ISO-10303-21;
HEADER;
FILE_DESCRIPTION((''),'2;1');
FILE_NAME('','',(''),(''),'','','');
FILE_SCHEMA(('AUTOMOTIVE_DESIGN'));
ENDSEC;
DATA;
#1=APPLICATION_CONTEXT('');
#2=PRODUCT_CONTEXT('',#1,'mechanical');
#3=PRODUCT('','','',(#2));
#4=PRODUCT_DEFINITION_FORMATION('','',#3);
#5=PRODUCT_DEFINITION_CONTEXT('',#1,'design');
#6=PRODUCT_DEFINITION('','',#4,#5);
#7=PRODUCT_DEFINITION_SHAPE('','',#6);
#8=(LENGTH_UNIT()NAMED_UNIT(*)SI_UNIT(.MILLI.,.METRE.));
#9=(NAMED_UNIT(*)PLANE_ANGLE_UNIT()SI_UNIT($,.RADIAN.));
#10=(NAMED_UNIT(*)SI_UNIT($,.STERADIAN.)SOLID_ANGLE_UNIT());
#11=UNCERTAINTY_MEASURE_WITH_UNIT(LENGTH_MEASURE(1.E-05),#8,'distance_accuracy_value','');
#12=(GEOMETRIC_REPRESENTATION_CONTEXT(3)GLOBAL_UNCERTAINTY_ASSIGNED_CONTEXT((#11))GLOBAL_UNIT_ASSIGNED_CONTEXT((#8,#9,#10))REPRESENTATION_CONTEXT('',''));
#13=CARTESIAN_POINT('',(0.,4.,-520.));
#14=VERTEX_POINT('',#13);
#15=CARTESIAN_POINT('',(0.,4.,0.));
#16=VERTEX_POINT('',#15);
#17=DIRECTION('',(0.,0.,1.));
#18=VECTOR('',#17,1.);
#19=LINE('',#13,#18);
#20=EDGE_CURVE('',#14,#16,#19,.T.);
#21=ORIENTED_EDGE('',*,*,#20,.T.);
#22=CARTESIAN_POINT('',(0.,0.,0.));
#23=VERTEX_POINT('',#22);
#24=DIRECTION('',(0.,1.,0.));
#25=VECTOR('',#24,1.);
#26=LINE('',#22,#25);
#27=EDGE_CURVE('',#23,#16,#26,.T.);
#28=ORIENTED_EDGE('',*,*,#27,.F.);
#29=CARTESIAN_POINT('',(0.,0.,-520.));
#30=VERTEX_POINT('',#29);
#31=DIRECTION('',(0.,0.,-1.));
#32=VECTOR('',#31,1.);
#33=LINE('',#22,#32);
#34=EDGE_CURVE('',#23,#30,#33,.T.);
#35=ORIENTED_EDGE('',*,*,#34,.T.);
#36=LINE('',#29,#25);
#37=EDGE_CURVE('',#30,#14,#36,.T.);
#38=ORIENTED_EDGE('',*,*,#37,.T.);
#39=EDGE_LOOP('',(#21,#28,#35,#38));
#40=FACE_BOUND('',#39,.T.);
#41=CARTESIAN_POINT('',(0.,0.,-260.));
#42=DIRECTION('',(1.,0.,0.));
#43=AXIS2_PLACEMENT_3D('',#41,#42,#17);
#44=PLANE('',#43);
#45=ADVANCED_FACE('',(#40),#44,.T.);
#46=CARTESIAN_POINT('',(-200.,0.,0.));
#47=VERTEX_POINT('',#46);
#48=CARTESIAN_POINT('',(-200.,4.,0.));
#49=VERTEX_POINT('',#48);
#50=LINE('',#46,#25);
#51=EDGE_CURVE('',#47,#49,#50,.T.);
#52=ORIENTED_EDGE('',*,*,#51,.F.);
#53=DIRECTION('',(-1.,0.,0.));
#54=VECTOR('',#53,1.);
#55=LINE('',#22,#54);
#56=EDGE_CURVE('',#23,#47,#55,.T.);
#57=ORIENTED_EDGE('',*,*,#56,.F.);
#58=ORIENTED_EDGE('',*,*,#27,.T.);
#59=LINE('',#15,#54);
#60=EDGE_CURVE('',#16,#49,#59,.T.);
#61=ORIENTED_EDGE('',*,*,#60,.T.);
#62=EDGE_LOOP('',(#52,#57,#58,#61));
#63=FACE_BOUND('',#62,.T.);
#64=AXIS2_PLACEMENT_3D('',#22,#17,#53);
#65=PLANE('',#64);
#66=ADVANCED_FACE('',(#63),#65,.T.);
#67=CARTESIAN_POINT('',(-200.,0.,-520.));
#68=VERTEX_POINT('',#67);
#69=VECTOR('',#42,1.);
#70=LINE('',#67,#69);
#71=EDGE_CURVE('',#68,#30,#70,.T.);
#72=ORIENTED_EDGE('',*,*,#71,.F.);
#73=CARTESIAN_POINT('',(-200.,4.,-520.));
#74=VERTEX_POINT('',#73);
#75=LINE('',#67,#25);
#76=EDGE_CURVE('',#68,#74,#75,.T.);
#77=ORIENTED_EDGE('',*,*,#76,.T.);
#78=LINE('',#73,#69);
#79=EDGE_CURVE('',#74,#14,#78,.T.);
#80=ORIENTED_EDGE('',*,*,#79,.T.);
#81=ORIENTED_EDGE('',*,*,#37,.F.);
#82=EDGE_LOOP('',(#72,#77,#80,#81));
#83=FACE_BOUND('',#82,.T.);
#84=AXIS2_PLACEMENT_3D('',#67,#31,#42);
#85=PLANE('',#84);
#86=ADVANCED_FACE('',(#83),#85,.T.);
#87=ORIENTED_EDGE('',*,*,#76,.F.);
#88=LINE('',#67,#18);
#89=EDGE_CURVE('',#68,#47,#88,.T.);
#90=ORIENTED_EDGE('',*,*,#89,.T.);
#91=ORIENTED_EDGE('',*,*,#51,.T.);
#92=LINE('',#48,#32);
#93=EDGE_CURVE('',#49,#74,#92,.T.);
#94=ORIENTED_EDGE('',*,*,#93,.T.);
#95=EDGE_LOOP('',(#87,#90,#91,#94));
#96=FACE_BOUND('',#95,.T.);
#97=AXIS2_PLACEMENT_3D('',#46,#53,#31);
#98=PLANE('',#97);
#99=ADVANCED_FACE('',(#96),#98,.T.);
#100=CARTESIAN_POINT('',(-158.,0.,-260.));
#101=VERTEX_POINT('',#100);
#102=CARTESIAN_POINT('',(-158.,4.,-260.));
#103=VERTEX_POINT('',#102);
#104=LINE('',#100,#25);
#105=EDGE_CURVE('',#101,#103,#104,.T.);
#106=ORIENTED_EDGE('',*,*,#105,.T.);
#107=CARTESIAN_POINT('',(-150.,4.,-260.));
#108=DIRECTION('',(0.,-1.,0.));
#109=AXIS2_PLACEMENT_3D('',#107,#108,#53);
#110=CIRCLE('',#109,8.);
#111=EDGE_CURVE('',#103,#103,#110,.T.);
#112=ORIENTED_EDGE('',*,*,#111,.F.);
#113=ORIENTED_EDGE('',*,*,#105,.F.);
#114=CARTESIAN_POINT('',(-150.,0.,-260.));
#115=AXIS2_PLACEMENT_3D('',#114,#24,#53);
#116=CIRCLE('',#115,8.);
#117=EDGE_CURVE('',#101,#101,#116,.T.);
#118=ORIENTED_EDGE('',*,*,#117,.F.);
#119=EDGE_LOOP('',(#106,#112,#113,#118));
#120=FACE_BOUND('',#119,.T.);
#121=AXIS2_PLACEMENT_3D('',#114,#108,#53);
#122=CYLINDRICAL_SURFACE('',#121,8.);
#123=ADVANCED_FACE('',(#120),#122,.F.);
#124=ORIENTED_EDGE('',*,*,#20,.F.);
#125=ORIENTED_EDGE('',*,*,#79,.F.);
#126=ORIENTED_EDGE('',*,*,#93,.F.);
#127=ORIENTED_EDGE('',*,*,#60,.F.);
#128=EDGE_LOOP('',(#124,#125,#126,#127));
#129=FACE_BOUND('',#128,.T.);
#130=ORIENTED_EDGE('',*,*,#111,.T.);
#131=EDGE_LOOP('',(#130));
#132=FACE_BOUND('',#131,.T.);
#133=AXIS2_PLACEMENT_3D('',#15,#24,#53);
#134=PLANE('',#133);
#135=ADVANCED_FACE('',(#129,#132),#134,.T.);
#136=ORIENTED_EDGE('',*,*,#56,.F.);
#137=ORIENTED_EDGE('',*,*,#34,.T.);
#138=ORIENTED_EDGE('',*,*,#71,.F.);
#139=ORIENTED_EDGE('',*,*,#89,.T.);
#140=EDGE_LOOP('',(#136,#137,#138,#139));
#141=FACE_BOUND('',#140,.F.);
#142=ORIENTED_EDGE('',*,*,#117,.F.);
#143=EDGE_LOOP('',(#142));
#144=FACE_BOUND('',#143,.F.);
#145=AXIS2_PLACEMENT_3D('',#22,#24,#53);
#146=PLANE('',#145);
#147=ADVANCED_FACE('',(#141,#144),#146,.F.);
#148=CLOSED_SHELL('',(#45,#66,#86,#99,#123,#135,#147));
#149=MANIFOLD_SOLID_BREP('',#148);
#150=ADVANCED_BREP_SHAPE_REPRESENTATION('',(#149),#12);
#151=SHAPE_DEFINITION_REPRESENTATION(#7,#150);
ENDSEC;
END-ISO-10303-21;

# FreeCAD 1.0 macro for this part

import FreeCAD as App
import Part
import Sketcher

V = App.Vector
Q = App.Units.Quantity

doc = App.newDocument("Part")
body = doc.addObject("PartDesign::Body", "Body")

# Sketch on XZ plane
sketch1 = doc.addObject("Sketcher::SketchObject", "Sketch")
body.addObject(sketch1)
sketch1.AttachmentSupport = (doc.XZ_Plane, [""])
sketch1.MapMode = "FlatFace"
sketch1.addGeometry([
    Part.LineSegment(V(-200, 0, 0), V(0, 0, 0)),  # 0
    Part.LineSegment(V(0, 0, 0), V(0, -520, 0)),  # 1
    Part.LineSegment(V(0, -520, 0), V(-200, -520, 0)),  # 2
    Part.LineSegment(V(-200, -520, 0), V(-200, 0, 0)),  # 3
    Part.Circle(V(-150, -260, 0), V(0, 0, 1), 8),  # 4
], False)
sketch1.addConstraint([
    Sketcher.Constraint("Coincident", 0, 2, 1, 1),
    Sketcher.Constraint("Coincident", 1, 2, 2, 1),
    Sketcher.Constraint("Coincident", 2, 2, 3, 1),
    Sketcher.Constraint("Coincident", 3, 2, 0, 1),
    Sketcher.Constraint("Horizontal", 0),
    Sketcher.Constraint("Vertical", 1),
    Sketcher.Constraint("Horizontal", 2),
    Sketcher.Constraint("Vertical", 3),
    Sketcher.Constraint("Coincident", 0, 2, -1, 1),
    Sketcher.Constraint("Diameter", 4, Q("16 mm")),
    Sketcher.Constraint("DistanceX", 0, 1, 0, 2, Q("200 mm")),
    Sketcher.Constraint("DistanceY", 1, 2, 1, 1, Q("520 mm")),
    Sketcher.Constraint("DistanceX", 4, 3, -1, 1, Q("150 mm")),
    Sketcher.Constraint("DistanceY", 4, 3, -1, 1, Q("260 mm")),
])
pad1 = doc.addObject("PartDesign::Pad", "Pad")
body.addObject(pad1)
pad1.Profile = sketch1
pad1.Length = 4
pad1.Reversed = True

doc.recompute()
